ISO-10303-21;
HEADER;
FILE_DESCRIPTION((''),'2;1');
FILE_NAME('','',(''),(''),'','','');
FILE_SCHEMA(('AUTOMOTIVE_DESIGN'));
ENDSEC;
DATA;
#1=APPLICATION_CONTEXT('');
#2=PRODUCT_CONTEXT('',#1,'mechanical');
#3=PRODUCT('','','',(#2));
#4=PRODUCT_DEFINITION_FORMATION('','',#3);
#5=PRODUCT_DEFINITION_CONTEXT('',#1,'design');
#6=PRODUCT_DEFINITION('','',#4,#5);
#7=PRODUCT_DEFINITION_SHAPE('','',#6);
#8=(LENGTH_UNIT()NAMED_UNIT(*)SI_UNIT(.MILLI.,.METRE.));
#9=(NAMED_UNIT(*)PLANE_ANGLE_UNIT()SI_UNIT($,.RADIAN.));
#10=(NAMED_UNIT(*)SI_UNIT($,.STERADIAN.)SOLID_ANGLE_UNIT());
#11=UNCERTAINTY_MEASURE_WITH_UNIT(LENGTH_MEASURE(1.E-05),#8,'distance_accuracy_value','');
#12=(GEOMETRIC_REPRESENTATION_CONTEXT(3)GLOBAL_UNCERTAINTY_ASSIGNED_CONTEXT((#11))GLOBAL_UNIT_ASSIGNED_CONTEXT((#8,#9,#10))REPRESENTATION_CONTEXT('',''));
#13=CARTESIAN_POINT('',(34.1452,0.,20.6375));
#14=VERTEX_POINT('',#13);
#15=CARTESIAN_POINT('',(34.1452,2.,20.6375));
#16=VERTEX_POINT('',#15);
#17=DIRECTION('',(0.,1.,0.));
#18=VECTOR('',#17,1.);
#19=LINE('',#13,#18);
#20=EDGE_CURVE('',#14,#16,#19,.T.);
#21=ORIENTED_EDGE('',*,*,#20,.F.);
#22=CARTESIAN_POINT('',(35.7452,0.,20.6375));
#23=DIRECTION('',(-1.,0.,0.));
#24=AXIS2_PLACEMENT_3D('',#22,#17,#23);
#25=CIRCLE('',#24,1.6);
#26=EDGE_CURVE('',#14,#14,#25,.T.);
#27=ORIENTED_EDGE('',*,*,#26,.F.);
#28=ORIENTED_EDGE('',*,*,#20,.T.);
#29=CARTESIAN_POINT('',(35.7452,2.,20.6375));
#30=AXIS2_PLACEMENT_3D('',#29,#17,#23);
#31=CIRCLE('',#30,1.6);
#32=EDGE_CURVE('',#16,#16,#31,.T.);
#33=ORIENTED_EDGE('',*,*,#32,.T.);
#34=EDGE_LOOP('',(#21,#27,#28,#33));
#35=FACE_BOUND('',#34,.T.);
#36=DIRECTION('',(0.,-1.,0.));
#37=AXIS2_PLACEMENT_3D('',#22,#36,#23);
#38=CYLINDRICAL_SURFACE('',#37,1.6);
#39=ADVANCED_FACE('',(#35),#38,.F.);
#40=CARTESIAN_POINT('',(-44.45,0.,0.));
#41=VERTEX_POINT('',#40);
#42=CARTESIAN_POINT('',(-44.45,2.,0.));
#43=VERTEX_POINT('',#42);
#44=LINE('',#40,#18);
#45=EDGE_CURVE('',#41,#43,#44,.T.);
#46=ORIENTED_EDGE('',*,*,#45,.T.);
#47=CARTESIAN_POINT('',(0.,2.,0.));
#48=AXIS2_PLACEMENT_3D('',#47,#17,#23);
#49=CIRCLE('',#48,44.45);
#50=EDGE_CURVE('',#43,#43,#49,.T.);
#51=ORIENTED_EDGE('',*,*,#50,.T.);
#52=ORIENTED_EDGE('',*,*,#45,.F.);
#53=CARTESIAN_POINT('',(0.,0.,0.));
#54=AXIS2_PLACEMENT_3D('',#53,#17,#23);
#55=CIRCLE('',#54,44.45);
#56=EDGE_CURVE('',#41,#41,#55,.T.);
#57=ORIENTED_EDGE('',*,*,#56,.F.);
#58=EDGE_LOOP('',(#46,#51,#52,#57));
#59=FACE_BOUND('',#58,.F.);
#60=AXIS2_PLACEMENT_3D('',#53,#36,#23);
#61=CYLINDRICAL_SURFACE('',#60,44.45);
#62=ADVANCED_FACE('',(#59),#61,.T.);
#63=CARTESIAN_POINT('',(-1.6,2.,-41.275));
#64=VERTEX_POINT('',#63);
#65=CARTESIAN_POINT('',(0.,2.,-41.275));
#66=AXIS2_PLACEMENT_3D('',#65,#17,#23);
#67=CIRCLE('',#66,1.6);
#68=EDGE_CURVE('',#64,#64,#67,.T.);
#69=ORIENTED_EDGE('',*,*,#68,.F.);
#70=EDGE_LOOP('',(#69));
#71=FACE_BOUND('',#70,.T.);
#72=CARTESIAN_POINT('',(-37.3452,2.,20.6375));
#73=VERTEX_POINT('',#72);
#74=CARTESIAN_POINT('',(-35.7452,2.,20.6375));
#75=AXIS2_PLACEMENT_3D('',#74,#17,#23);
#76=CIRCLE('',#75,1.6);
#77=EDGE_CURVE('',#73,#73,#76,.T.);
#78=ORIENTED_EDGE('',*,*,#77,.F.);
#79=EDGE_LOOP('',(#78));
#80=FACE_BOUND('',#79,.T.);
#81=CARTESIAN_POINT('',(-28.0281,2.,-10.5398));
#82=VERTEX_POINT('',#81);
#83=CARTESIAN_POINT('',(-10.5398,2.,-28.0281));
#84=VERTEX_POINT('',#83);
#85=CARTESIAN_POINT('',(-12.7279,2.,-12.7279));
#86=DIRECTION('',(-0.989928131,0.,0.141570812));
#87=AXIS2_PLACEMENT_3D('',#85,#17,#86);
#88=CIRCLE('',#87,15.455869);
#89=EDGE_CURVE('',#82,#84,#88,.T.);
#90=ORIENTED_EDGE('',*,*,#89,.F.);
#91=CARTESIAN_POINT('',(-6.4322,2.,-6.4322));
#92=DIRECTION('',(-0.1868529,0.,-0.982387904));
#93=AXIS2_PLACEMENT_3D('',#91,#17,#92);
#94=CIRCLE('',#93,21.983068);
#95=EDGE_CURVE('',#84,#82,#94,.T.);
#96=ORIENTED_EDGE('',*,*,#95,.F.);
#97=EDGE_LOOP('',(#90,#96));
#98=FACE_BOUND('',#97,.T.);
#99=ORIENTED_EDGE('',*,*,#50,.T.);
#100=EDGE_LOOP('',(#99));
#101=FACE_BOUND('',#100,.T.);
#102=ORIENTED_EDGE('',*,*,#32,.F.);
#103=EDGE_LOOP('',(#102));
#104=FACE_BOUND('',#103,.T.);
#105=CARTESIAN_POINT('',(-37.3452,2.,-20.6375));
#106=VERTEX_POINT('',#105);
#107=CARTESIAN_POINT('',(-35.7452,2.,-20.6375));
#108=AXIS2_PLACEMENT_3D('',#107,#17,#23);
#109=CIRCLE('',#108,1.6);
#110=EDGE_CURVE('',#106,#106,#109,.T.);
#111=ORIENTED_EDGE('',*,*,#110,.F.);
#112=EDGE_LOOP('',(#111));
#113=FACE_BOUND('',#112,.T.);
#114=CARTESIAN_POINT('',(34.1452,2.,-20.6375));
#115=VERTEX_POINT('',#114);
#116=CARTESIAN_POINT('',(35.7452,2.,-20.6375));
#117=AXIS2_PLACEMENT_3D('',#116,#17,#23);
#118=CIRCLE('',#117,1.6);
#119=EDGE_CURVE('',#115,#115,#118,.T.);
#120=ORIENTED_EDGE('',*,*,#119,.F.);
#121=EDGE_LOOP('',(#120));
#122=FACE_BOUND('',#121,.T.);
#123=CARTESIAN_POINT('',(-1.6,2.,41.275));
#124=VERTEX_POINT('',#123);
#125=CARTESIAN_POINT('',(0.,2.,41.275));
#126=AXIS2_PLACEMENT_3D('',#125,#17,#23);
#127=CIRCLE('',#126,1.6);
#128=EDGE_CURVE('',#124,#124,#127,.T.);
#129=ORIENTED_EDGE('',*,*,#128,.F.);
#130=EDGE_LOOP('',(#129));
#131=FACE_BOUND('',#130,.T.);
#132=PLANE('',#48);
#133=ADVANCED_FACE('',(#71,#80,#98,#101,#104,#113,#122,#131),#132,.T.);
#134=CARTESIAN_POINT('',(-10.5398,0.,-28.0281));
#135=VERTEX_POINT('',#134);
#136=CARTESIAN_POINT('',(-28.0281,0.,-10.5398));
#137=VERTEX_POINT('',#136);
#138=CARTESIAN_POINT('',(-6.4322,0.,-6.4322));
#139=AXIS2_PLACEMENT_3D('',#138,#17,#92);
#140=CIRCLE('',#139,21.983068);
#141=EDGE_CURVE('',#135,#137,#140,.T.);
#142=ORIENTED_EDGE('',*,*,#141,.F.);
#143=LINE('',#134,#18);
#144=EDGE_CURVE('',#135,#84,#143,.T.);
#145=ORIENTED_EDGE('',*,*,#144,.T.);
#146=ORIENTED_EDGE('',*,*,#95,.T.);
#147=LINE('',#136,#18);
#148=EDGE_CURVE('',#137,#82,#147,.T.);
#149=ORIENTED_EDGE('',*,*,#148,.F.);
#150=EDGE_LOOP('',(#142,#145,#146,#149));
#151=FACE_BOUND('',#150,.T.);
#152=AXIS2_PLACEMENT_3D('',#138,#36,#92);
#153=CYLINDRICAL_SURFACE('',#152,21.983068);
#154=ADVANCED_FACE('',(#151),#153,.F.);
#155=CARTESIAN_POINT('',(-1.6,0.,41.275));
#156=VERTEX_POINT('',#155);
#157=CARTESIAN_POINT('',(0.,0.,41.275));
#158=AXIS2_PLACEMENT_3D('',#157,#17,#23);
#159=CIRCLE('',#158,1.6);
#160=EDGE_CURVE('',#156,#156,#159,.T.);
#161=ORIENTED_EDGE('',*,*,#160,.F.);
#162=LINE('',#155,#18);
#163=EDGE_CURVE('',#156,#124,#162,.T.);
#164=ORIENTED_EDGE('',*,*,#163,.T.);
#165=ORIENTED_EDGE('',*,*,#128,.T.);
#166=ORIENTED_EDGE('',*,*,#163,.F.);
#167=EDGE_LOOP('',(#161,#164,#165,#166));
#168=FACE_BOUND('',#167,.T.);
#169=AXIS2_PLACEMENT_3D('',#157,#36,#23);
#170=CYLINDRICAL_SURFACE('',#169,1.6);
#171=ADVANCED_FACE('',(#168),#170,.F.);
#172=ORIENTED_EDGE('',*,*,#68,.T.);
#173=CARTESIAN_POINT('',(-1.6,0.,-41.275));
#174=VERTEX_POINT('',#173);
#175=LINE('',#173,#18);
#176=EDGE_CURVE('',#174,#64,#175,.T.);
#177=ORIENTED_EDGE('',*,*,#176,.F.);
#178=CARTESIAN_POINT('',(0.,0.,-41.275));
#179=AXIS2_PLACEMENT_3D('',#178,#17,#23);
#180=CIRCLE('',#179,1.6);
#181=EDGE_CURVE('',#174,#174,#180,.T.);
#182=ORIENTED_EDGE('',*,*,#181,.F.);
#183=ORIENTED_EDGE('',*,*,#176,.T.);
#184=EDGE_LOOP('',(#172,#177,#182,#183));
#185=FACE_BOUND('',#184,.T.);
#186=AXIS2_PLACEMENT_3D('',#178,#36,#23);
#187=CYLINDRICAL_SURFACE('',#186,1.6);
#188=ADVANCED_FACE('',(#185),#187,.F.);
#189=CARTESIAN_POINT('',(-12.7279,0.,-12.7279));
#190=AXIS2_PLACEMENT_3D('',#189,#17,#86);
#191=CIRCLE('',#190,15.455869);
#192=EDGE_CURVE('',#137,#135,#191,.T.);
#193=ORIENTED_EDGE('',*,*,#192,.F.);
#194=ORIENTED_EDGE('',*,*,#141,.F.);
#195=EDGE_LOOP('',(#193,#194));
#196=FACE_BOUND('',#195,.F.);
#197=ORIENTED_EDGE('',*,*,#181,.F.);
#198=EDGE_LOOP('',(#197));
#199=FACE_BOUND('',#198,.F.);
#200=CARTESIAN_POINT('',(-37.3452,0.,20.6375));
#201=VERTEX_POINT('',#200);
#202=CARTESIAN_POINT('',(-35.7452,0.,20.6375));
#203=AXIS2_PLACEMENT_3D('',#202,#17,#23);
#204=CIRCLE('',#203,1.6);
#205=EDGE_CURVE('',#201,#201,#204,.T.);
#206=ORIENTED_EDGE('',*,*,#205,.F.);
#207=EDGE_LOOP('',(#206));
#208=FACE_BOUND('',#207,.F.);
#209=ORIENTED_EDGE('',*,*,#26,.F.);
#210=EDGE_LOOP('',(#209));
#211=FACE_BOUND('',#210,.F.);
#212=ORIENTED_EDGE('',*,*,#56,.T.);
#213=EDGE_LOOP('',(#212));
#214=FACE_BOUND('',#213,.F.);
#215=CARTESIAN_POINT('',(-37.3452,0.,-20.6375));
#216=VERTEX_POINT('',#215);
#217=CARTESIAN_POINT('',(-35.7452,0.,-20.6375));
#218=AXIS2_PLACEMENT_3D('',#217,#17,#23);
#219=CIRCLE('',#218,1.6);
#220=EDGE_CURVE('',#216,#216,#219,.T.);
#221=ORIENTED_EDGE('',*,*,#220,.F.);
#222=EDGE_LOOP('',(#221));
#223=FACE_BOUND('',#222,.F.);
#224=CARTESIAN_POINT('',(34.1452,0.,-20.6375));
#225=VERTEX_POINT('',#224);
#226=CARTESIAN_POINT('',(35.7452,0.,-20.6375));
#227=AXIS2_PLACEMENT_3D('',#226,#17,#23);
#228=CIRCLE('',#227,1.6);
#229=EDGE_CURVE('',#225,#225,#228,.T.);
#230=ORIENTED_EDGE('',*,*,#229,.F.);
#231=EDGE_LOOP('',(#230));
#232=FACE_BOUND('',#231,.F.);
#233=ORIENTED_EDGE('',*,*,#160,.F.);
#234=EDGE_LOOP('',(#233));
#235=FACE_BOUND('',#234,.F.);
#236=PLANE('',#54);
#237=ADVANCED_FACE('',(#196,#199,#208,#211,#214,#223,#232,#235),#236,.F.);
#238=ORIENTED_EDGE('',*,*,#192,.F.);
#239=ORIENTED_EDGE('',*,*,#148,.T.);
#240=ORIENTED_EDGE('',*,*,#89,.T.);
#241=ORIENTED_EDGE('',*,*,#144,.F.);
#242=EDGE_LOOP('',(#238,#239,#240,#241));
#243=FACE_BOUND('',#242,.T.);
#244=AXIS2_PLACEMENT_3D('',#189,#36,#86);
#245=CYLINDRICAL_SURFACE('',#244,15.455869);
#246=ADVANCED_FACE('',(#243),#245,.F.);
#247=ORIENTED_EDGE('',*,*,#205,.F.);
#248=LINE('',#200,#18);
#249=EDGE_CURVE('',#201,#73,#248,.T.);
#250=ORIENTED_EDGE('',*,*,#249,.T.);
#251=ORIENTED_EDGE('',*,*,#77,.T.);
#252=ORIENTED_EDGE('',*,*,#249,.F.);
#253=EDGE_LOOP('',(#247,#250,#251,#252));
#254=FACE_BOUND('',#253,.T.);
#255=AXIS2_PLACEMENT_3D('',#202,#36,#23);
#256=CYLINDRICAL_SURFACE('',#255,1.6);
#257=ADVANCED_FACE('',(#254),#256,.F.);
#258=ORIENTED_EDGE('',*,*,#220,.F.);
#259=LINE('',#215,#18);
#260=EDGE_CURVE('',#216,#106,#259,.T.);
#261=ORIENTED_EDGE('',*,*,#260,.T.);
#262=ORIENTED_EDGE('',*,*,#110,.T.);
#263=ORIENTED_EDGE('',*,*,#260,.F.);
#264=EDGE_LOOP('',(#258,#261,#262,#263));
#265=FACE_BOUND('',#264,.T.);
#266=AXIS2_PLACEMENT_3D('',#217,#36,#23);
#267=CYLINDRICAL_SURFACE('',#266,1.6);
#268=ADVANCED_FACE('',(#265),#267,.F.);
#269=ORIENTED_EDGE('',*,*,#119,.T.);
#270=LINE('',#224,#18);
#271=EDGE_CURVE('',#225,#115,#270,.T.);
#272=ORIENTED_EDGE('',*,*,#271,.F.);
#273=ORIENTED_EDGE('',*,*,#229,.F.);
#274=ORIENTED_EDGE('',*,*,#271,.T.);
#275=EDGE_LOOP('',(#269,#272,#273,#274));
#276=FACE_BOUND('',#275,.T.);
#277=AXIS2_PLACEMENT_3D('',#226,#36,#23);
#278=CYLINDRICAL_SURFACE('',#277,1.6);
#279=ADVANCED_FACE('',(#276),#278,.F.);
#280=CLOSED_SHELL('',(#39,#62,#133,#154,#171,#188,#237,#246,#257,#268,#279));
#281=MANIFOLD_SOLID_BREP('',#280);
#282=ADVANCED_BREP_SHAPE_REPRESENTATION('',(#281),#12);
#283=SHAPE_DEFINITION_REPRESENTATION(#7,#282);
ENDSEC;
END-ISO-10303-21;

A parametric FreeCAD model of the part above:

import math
import FreeCAD as App
import Part
import Sketcher
Q = App.Units.Quantity

doc = App.newDocument("Part")
body = doc.addObject("PartDesign::Body", "Body")

# Sketch on XZ plane
sketch1 = body.newObject("Sketcher::SketchObject", "Sketch")
sketch1.AttachmentSupport = (doc.getObject("XZ_Plane"), [""])
sketch1.MapMode = "FlatFace"
sketch1.addGeometry([
    Part.Circle(App.Vector(0, 0, 0), App.Vector(0, 0, 1), 44.45),  # 0
    Part.Circle(App.Vector(35.7452, -20.6375, 0), App.Vector(0, 0, 1), 1.6),  # 1
    Part.Circle(App.Vector(0, -41.275, 0), App.Vector(0, 0, 1), 1.6),  # 2
    Part.ArcOfCircle(Part.Circle(App.Vector(-12.7279, -12.7279, 0), App.Vector(0, 0, 1), 15.455869), math.radians(-81.861247), math.radians(171.861247)),  # 3
    Part.ArcOfCircle(Part.Circle(App.Vector(-6.4322, -6.4322, 0), App.Vector(0, 0, 1), 21.983068), math.radians(-169.23082), math.radians(-100.76918)),  # 4
    Part.Circle(App.Vector(-35.7452, -20.6375, 0), App.Vector(0, 0, 1), 1.6),  # 5
    Part.Circle(App.Vector(35.7452, 20.6375, 0), App.Vector(0, 0, 1), 1.6),  # 6
    Part.Circle(App.Vector(-35.7452, 20.6375, 0), App.Vector(0, 0, 1), 1.6),  # 7
    Part.Circle(App.Vector(0, 41.275, 0), App.Vector(0, 0, 1), 1.6),  # 8
], False)
sketch1.addConstraint([
    Sketcher.Constraint("Coincident", 3, 1, 4, 2),
    Sketcher.Constraint("Coincident", 4, 1, 3, 2),
    Sketcher.Constraint("Coincident", 0, 3, -1, 1),
    Sketcher.Constraint("Equal", 1, 2),
    Sketcher.Constraint("Equal", 2, 5),
    Sketcher.Constraint("Equal", 5, 6),
    Sketcher.Constraint("Equal", 6, 7),
    Sketcher.Constraint("Equal", 7, 8),
    Sketcher.Constraint("Symmetric", 5, 3, 6, 3, -1, 1),
    Sketcher.Constraint("Symmetric", 1, 3, 7, 3, -1, 1),
    Sketcher.Constraint("Symmetric", 2, 3, 8, 3, -1, 1),
    Sketcher.Constraint("Symmetric", 1, 3, 5, 3, -2),
    Sketcher.Constraint("PointOnObject", 2, 3, -2),
    Sketcher.Constraint("Diameter", 0, Q("88.9 mm")),
    Sketcher.Constraint("Diameter", 1, Q("3.2 mm")),
    Sketcher.Constraint("Radius", 4, Q("21.983 mm")),
    Sketcher.Constraint("Radius", 3, Q("15.4559 mm")),
    Sketcher.Constraint("DistanceY", 2, 3, -1, 1, Q("41.275 mm")),
    Sketcher.Constraint("DistanceX", 3, 3, -1, 1, Q("12.728 mm")),
    Sketcher.Constraint("DistanceY", 3, 3, -1, 1, Q("12.728 mm")),
    Sketcher.Constraint("DistanceY", 3, 1, -1, 1, Q("28.028 mm")),
    Sketcher.Constraint("DistanceX", 4, 1, -1, 1, Q("28.028 mm")),
    Sketcher.Constraint("DistanceX", 3, 3, 1, 3, Q("48.473 mm")),
    Sketcher.Constraint("DistanceY", 1, 3, 6, 3, Q("41.275 mm")),
])
pad1 = body.newObject("PartDesign::Pad", "Pad")
pad1.Profile = sketch1
pad1.Length = 2
pad1.Reversed = True

doc.recompute()
